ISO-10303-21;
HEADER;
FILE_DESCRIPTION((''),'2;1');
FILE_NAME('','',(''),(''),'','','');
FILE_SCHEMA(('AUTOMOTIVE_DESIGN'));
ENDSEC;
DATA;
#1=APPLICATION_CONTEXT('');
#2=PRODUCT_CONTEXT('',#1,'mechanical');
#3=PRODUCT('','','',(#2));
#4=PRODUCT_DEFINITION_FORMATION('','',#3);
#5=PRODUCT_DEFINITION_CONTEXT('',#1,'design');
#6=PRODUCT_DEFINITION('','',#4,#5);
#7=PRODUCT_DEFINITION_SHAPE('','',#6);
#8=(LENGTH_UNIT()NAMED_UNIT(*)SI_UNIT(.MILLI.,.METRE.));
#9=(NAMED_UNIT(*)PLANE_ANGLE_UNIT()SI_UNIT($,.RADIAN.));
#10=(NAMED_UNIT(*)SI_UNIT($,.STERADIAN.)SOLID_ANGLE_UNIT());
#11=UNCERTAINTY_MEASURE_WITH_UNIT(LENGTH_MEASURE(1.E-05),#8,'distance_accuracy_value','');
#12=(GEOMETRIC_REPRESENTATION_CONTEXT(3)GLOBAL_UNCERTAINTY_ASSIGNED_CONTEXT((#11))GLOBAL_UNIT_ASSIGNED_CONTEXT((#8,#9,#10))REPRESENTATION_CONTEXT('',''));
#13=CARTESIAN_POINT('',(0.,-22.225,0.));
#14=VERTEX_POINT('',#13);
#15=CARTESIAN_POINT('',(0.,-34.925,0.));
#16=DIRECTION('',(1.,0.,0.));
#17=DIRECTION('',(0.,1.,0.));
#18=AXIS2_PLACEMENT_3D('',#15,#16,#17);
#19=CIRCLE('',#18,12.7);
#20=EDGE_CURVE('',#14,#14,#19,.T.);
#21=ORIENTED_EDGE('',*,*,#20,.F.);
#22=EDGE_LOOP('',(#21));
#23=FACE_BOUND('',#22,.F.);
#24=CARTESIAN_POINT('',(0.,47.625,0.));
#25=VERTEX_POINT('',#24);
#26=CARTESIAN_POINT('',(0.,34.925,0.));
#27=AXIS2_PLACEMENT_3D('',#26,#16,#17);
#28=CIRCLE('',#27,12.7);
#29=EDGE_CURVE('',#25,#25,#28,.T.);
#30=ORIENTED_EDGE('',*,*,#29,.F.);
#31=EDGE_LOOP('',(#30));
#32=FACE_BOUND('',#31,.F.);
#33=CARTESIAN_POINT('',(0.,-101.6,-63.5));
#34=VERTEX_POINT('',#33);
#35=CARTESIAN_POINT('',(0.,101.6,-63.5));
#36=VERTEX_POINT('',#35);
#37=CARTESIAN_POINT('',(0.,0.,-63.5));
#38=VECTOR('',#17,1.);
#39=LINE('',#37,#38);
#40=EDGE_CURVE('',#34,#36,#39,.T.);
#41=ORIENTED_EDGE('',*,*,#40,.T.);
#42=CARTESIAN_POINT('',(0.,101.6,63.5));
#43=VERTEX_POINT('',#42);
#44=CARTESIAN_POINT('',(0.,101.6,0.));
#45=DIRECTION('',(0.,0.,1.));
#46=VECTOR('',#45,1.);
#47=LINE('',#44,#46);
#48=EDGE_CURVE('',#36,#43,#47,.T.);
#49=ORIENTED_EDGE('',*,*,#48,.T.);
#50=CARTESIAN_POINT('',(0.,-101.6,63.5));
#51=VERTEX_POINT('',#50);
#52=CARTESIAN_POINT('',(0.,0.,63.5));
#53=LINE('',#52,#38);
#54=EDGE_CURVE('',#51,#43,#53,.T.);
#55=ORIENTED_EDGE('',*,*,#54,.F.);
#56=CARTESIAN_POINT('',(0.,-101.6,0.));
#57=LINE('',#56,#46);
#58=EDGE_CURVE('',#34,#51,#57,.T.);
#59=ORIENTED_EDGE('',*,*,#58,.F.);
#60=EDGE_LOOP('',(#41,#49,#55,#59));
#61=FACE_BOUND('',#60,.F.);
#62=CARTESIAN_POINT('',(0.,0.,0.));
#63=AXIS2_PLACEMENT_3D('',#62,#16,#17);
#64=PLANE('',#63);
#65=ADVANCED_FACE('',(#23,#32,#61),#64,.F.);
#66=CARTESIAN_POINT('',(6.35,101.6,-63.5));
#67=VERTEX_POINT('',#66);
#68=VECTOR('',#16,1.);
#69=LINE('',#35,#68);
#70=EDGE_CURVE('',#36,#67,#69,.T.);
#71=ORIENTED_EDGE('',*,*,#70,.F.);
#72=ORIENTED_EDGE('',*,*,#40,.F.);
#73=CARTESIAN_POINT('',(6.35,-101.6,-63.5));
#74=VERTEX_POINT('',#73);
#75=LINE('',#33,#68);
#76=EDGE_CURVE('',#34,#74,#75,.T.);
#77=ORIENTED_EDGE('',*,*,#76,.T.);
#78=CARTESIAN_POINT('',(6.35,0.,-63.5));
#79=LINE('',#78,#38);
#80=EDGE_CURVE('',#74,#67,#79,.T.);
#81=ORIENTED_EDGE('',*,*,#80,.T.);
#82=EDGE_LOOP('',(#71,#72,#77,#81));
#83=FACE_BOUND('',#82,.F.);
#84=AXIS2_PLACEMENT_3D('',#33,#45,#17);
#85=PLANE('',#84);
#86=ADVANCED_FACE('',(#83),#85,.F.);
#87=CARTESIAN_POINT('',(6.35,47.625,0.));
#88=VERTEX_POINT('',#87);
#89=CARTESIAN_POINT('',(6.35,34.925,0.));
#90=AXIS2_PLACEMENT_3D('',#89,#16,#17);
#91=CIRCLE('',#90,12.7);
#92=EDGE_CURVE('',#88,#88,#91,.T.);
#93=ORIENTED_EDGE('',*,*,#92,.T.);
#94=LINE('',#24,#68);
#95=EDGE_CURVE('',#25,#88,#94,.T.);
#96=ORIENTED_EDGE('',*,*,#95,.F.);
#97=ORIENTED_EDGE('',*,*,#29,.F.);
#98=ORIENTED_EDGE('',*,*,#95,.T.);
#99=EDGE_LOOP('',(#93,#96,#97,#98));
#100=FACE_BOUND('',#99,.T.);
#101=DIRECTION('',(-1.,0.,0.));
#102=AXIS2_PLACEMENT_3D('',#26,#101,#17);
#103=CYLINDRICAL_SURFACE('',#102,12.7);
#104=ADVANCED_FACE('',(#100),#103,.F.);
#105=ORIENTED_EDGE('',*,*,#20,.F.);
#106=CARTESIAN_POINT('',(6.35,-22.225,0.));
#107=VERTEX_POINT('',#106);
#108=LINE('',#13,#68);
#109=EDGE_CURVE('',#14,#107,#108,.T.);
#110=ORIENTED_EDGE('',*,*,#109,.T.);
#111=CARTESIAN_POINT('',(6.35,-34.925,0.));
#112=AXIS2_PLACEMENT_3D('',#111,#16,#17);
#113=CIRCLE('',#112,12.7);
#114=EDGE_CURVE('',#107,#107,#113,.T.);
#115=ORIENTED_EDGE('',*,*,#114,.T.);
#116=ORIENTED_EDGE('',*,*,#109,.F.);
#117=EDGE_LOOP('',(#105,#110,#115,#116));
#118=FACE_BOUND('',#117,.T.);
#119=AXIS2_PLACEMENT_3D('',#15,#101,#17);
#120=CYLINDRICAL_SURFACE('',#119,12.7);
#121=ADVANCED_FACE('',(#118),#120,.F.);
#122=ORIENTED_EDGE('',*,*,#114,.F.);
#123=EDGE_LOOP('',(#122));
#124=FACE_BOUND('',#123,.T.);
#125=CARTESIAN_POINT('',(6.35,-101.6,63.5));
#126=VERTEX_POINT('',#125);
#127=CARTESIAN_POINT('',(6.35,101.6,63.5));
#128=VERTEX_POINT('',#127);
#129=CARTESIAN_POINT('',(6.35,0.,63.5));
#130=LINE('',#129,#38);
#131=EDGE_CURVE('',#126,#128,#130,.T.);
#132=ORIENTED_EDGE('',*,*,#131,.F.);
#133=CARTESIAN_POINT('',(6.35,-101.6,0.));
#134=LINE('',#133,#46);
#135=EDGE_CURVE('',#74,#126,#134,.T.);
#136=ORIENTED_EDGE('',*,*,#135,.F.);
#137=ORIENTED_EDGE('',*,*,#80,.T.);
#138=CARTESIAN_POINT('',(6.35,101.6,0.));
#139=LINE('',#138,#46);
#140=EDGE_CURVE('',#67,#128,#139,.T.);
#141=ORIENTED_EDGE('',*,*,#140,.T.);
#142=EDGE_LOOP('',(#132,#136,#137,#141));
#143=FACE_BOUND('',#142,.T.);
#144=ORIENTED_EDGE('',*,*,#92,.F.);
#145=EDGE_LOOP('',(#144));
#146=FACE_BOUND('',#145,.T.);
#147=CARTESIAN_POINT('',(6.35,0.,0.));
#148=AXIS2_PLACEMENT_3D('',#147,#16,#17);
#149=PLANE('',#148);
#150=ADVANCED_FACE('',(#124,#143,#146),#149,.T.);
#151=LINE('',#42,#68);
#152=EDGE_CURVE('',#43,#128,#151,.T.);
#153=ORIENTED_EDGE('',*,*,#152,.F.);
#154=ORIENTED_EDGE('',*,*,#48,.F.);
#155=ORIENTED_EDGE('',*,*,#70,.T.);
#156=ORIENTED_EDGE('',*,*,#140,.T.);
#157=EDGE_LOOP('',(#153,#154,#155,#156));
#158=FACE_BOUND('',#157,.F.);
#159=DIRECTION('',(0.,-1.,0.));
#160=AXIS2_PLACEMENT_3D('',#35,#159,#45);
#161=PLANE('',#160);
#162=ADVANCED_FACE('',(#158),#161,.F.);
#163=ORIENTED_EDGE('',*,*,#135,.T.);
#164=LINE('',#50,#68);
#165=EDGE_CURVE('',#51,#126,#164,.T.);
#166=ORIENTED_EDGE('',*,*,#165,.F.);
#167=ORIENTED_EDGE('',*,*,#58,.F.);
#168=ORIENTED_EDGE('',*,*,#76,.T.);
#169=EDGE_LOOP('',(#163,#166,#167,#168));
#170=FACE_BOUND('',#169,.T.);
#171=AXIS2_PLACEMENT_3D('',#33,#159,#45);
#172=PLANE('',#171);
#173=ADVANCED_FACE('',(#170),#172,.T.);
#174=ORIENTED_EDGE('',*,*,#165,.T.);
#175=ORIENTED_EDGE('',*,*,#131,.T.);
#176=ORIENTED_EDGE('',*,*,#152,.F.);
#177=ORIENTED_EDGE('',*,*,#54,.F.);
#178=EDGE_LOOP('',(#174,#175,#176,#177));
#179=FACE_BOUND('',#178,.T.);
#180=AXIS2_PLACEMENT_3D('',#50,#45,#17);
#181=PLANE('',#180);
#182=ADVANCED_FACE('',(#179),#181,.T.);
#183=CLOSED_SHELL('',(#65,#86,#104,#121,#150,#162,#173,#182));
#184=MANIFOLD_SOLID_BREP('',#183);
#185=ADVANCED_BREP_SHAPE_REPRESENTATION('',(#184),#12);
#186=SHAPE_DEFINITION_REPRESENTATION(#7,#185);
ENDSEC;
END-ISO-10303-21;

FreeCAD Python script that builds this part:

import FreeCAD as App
import Part
import Sketcher
Q = App.Units.Quantity


def add_polygon(sketch, points):
    """Adds a closed chain of lines whose ends are joined by coincident constraints."""
    first, n = sketch.GeometryCount, len(points)
    for a, b in zip(points, points[1:] + points[:1]):
        sketch.addGeometry(Part.LineSegment(App.Vector(*a, 0), App.Vector(*b, 0)), False)
    for i in range(n):
        sketch.addConstraint(Sketcher.Constraint("Coincident", first + i, 2, first + (i + 1) % n, 1))

doc = App.newDocument("Part")
body = doc.addObject("PartDesign::Body", "Body")

# Sketch on YZ plane
sketch1 = body.newObject("Sketcher::SketchObject", "Sketch")
sketch1.AttachmentSupport = (doc.getObject("YZ_Plane"), [""])
sketch1.MapMode = "FlatFace"
add_polygon(sketch1, [(-102, 64), (-102, -64), (102, -64), (102, 64)])  # lines 0-3
sketch1.addGeometry(Part.Circle(App.Vector(-35, 0, 0), App.Vector(0, 0, 1), 13), False)  # 4
sketch1.addGeometry(Part.Circle(App.Vector(35, 0, 0), App.Vector(0, 0, 1), 13), False)  # 5
sketch1.addConstraint(Sketcher.Constraint("Vertical", 0))
sketch1.addConstraint(Sketcher.Constraint("Horizontal", 1))
sketch1.addConstraint(Sketcher.Constraint("Vertical", 2))
sketch1.addConstraint(Sketcher.Constraint("Horizontal", 3))
sketch1.addConstraint(Sketcher.Constraint("Equal", 4, 5))
sketch1.addConstraint(Sketcher.Constraint("Symmetric", 4, 3, 5, 3, -1, 1))
sketch1.addConstraint(Sketcher.Constraint("Symmetric", 0, 2, 2, 2, -1, 1))
sketch1.addConstraint(Sketcher.Constraint("PointOnObject", 4, 3, -1))
sketch1.addConstraint(Sketcher.Constraint("Diameter", 4, Q("1 in")))
sketch1.addConstraint(Sketcher.Constraint("DistanceX", 1, 1, 1, 2, Q("8 in")))
sketch1.addConstraint(Sketcher.Constraint("DistanceY", 0, 2, 0, 1, Q("5 in")))
sketch1.addConstraint(Sketcher.Constraint("DistanceX", 4, 3, 5, 3, Q("2.75 in")))
pad1 = body.newObject("PartDesign::Pad", "Pad")
pad1.Profile = sketch1
pad1.Length = Q("0.25 in")

doc.recompute()
